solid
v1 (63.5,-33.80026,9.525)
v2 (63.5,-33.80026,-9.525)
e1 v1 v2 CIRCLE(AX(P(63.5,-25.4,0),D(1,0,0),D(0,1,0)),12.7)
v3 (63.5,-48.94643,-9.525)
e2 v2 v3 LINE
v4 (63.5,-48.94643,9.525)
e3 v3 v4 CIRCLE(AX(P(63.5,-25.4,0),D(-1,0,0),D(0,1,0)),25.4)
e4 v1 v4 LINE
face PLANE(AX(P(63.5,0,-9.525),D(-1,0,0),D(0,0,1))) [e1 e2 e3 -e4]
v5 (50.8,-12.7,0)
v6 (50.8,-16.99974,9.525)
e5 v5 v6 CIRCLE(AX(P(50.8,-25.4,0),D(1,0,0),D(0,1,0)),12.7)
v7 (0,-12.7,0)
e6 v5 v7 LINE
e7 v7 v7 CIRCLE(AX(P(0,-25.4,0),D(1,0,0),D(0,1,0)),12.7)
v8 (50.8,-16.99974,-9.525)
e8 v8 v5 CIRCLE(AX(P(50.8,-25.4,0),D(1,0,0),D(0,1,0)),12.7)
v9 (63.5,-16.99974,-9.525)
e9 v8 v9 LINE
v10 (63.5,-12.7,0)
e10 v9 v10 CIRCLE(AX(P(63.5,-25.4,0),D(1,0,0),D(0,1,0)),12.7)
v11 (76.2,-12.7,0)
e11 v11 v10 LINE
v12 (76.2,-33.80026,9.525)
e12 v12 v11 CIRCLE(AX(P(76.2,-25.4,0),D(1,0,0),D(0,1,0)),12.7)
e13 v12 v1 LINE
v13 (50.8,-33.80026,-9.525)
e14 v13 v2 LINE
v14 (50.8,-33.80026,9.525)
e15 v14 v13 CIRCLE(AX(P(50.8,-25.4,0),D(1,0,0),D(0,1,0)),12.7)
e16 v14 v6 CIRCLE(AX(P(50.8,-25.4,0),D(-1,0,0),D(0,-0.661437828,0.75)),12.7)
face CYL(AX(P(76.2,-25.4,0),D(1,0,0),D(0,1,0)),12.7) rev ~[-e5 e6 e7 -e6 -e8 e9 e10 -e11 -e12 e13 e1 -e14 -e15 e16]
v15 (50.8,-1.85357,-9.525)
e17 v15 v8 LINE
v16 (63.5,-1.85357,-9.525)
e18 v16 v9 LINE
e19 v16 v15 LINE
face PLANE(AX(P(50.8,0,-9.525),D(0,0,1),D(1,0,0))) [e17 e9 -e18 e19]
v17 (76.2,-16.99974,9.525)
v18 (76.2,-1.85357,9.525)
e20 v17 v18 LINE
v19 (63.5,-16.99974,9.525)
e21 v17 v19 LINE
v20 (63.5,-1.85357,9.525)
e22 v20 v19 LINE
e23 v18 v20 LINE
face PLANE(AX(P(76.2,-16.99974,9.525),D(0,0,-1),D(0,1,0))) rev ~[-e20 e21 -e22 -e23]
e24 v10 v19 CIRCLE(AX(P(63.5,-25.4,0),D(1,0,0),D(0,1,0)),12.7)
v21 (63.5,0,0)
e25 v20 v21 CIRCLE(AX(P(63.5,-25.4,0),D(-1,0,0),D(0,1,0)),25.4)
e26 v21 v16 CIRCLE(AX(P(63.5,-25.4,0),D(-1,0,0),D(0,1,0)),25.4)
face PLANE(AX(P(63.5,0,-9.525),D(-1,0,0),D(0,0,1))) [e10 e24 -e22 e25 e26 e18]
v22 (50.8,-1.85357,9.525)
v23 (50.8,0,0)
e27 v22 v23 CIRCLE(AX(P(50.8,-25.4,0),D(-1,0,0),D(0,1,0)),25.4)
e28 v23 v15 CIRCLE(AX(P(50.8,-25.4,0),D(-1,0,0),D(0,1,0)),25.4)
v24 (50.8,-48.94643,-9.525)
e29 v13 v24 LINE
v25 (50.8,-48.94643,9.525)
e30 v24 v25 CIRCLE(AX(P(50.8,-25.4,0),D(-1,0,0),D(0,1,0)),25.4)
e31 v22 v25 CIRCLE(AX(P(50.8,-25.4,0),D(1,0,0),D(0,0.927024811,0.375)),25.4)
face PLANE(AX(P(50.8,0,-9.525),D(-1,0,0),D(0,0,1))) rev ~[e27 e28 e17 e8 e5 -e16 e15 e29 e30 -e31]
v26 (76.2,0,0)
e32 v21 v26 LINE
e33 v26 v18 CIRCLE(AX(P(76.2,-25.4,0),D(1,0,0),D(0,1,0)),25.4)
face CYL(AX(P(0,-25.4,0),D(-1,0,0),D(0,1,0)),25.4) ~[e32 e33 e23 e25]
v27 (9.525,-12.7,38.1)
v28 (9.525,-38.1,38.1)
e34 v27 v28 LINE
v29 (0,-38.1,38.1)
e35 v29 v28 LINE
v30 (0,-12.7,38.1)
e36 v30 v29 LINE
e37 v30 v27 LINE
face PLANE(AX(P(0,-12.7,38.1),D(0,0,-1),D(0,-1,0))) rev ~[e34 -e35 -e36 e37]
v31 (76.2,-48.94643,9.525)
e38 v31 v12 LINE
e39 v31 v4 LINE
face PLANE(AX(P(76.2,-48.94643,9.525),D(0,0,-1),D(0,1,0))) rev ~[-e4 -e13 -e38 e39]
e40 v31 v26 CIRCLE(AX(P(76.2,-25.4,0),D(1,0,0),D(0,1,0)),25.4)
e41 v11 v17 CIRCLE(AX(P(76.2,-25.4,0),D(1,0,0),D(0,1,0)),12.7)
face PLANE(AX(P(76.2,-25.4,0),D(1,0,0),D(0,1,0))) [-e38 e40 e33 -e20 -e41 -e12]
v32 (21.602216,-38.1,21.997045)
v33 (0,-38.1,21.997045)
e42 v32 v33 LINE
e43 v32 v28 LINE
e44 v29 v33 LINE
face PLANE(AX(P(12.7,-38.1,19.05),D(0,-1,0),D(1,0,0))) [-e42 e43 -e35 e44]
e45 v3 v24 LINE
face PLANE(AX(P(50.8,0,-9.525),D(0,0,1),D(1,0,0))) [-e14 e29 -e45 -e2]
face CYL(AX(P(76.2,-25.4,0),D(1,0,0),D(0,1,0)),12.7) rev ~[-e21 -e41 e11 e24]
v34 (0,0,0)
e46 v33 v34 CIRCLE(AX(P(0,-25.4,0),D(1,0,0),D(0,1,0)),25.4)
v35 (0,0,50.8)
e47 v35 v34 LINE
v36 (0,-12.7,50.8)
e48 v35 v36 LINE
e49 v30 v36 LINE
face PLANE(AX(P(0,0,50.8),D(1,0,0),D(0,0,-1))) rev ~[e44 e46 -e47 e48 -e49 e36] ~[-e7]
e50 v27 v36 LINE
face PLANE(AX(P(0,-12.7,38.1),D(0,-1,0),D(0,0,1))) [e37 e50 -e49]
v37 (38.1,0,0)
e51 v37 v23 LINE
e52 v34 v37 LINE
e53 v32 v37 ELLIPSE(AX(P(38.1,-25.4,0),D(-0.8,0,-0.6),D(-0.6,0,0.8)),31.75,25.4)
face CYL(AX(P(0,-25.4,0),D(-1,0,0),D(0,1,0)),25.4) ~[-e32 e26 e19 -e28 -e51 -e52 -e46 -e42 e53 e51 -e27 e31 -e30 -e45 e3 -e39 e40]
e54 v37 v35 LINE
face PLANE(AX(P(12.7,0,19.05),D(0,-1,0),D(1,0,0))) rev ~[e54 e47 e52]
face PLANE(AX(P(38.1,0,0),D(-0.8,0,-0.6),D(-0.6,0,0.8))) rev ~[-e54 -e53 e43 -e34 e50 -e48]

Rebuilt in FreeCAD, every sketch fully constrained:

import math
import FreeCAD as App
import Part
import Sketcher
from FreeCAD import Vector
Q = App.Units.Quantity

doc = App.newDocument("Part")
body = doc.addObject("PartDesign::Body", "Body")

sketch1 = body.newObject("Sketcher::SketchObject", "Sketch")
sketch1.AttachmentSupport = (doc.getObject("XZ_Plane"), [""])
sketch1.MapMode = "FlatFace"
sketch1.addGeometry(Part.LineSegment(Vector(0, 50.8, 0), Vector(0, 0, 0)), False)
sketch1.addGeometry(Part.LineSegment(Vector(0, 0, 0), Vector(38.1, 0, 0)), False)
sketch1.addGeometry(Part.LineSegment(Vector(38.1, 0, 0), Vector(0, 50.8, 0)), False)
sketch1.addConstraint(Sketcher.Constraint("Coincident", 0, 2, 1, 1))
sketch1.addConstraint(Sketcher.Constraint("Coincident", 1, 2, 2, 1))
sketch1.addConstraint(Sketcher.Constraint("Coincident", 2, 2, 0, 1))
sketch1.addConstraint(Sketcher.Constraint("Vertical", 0))
sketch1.addConstraint(Sketcher.Constraint("Horizontal", 1))
sketch1.addConstraint(Sketcher.Constraint("Coincident", 0, 2, -1, 1))
sketch1.addConstraint(Sketcher.Constraint("DistanceY", 0, 2, 0, 1, Q("2 in")))
sketch1.addConstraint(Sketcher.Constraint("DistanceX", 1, 1, 1, 2, Q("1.5 in")))
pad1 = body.newObject("PartDesign::Pad", "Pad")
pad1.Profile = sketch1
pad1.Length = Q("1.5 in")

sketch2 = body.newObject("Sketcher::SketchObject", "Sketch001")
sketch2.AttachmentSupport = (doc.getObject("YZ_Plane"), [""])
sketch2.MapMode = "FlatFace"
sketch2.addGeometry(Part.Circle(Vector(-25.4, 0, 0), Vector(0, 0, 1), 25.4), False)
sketch2.addConstraint(Sketcher.Constraint("PointOnObject", 0, 3, -1))
sketch2.addConstraint(Sketcher.Constraint("Diameter", 0, Q("2 in")))
sketch2.addConstraint(Sketcher.Constraint("DistanceX", 0, 3, -1, 1, Q("1 in")))
pad2 = body.newObject("PartDesign::Pad", "Pad001")
pad2.Profile = sketch2
pad2.Length = Q("3 in")

sketch3 = body.newObject("Sketcher::SketchObject", "Sketch002")
sketch3.AttachmentSupport = (doc.getObject("YZ_Plane"), [""])
sketch3.MapMode = "FlatFace"
sketch3.AttachmentOffset = App.Placement(Vector(0, 0, 3 * 25.4), App.Rotation())
sketch3.addGeometry(Part.Circle(Vector(-25.4, 0, 0), Vector(0, 0, 1), 12.7), False)
sketch3.addConstraint(Sketcher.Constraint("PointOnObject", 0, 3, -1))
sketch3.addConstraint(Sketcher.Constraint("Diameter", 0, Q("1 in")))
sketch3.addConstraint(Sketcher.Constraint("DistanceX", 0, 3, -1, 1, Q("1 in")))
pocket1 = body.newObject("PartDesign::Pocket", "Pocket")
pocket1.Profile = sketch3
pocket1.Length = Q("3 in")

sketch4 = body.newObject("Sketcher::SketchObject", "Sketch003")
sketch4.AttachmentSupport = (doc.getObject("YZ_Plane"), [""])
sketch4.MapMode = "FlatFace"
sketch4.AttachmentOffset = App.Placement(Vector(0, 0, 3 * 25.4), App.Rotation())
sketch4.addGeometry(Part.LineSegment(Vector(-48.94643, 9.525, 0), Vector(-33.80026, 9.525, 0)), False)
sketch4.addGeometry(Part.ArcOfCircle(Part.Circle(Vector(-25.4, 0, 0), Vector(0, 0, 1), 12.7), math.radians(48.590378), math.radians(131.409622)), False)
sketch4.addGeometry(Part.LineSegment(Vector(-16.99974, 9.525, 0), Vector(-1.85357, 9.525, 0)), False)
sketch4.addGeometry(Part.ArcOfCircle(Part.Circle(Vector(-25.4, 0, 0), Vector(0, 0, 1), 25.4), math.radians(22.024313), math.radians(157.975687)), False)
sketch4.addConstraint(Sketcher.Constraint("Coincident", 0, 2, 1, 2))
sketch4.addConstraint(Sketcher.Constraint("Coincident", 1, 1, 2, 1))
sketch4.addConstraint(Sketcher.Constraint("Coincident", 2, 2, 3, 1))
sketch4.addConstraint(Sketcher.Constraint("Coincident", 3, 2, 0, 1))
sketch4.addConstraint(Sketcher.Constraint("Horizontal", 0))
sketch4.addConstraint(Sketcher.Constraint("Horizontal", 2))
sketch4.addConstraint(Sketcher.Constraint("Coincident", 3, 3, 1, 3))
sketch4.addConstraint(Sketcher.Constraint("PointOnObject", 1, 3, -1))
sketch4.addConstraint(Sketcher.Constraint("Horizontal", 0, 2, 1, 1))
sketch4.addConstraint(Sketcher.Constraint("Radius", 3, Q("1 in")))
sketch4.addConstraint(Sketcher.Constraint("Radius", 1, Q("0.5 in")))
sketch4.addConstraint(Sketcher.Constraint("DistanceX", 1, 3, -1, 1, Q("1 in")))
sketch4.addConstraint(Sketcher.Constraint("DistanceY", -1, 1, 0, 2, Q("0.375 in")))
pocket2 = body.newObject("PartDesign::Pocket", "Pocket001")
pocket2.Profile = sketch4
pocket2.Length = Q("1 in")

sketch5 = body.newObject("Sketcher::SketchObject", "Sketch004")
sketch5.AttachmentSupport = (doc.getObject("YZ_Plane"), [""])
sketch5.MapMode = "FlatFace"
sketch5.addGeometry(Part.LineSegment(Vector(-12.7, 50.8, 0), Vector(-12.7, 38.1, 0)), False)
sketch5.addGeometry(Part.LineSegment(Vector(-12.7, 38.1, 0), Vector(-38.1, 38.1, 0)), False)
sketch5.addGeometry(Part.LineSegment(Vector(-38.1, 38.1, 0), Vector(-38.1, 50.8, 0)), False)
sketch5.addGeometry(Part.LineSegment(Vector(-38.1, 50.8, 0), Vector(-12.7, 50.8, 0)), False)
sketch5.addConstraint(Sketcher.Constraint("Coincident", 0, 2, 1, 1))
sketch5.addConstraint(Sketcher.Constraint("Coincident", 1, 2, 2, 1))
sketch5.addConstraint(Sketcher.Constraint("Coincident", 2, 2, 3, 1))
sketch5.addConstraint(Sketcher.Constraint("Coincident", 3, 2, 0, 1))
sketch5.addConstraint(Sketcher.Constraint("Vertical", 0))
sketch5.addConstraint(Sketcher.Constraint("Horizontal", 1))
sketch5.addConstraint(Sketcher.Constraint("Vertical", 2))
sketch5.addConstraint(Sketcher.Constraint("Horizontal", 3))
sketch5.addConstraint(Sketcher.Constraint("DistanceX", 1, 2, 1, 1, Q("1 in")))
sketch5.addConstraint(Sketcher.Constraint("DistanceY", 0, 2, 0, 1, Q("0.5 in")))
sketch5.addConstraint(Sketcher.Constraint("DistanceY", -1, 1, 2, 2, Q("2 in")))
sketch5.addConstraint(Sketcher.Constraint("DistanceX", 0, 2, -1, 1, Q("0.5 in")))
pocket3 = body.newObject("PartDesign::Pocket", "Pocket002")
pocket3.Profile = sketch5
pocket3.Length = Q("1 in")
pocket3.Reversed = True

sketch6 = body.newObject("Sketcher::SketchObject", "Sketch005")
sketch6.AttachmentSupport = (doc.getObject("XZ_Plane"), [""])
sketch6.MapMode = "FlatFace"
sketch6.addGeometry(Part.LineSegment(Vector(50.8, 9.525, 0), Vector(50.8, -9.525, 0)), False)
sketch6.addGeometry(Part.LineSegment(Vector(50.8, -9.525, 0), Vector(63.5, -9.525, 0)), False)
sketch6.addGeometry(Part.LineSegment(Vector(63.5, -9.525, 0), Vector(63.5, 9.525, 0)), False)
sketch6.addGeometry(Part.LineSegment(Vector(63.5, 9.525, 0), Vector(50.8, 9.525, 0)), False)
sketch6.addConstraint(Sketcher.Constraint("Coincident", 0, 2, 1, 1))
sketch6.addConstraint(Sketcher.Constraint("Coincident", 1, 2, 2, 1))
sketch6.addConstraint(Sketcher.Constraint("Coincident", 2, 2, 3, 1))
sketch6.addConstraint(Sketcher.Constraint("Coincident", 3, 2, 0, 1))
sketch6.addConstraint(Sketcher.Constraint("Vertical", 0))
sketch6.addConstraint(Sketcher.Constraint("Horizontal", 1))
sketch6.addConstraint(Sketcher.Constraint("Vertical", 2))
sketch6.addConstraint(Sketcher.Constraint("Horizontal", 3))
sketch6.addConstraint(Sketcher.Constraint("DistanceX", 1, 1, 1, 2, Q("0.5 in")))
sketch6.addConstraint(Sketcher.Constraint("DistanceX", -1, 1, 0, 2, Q("2 in")))
sketch6.addConstraint(Sketcher.Constraint("DistanceY", 0, 2, 0, 1, Q("0.75 in")))
sketch6.addConstraint(Sketcher.Constraint("DistanceY", 0, 2, -1, 1, Q("0.375 in")))
pocket4 = body.newObject("PartDesign::Pocket", "Pocket003")
pocket4.Profile = sketch6
pocket4.Length = Q("3 in")
pocket4.Reversed = True

doc.recompute()
